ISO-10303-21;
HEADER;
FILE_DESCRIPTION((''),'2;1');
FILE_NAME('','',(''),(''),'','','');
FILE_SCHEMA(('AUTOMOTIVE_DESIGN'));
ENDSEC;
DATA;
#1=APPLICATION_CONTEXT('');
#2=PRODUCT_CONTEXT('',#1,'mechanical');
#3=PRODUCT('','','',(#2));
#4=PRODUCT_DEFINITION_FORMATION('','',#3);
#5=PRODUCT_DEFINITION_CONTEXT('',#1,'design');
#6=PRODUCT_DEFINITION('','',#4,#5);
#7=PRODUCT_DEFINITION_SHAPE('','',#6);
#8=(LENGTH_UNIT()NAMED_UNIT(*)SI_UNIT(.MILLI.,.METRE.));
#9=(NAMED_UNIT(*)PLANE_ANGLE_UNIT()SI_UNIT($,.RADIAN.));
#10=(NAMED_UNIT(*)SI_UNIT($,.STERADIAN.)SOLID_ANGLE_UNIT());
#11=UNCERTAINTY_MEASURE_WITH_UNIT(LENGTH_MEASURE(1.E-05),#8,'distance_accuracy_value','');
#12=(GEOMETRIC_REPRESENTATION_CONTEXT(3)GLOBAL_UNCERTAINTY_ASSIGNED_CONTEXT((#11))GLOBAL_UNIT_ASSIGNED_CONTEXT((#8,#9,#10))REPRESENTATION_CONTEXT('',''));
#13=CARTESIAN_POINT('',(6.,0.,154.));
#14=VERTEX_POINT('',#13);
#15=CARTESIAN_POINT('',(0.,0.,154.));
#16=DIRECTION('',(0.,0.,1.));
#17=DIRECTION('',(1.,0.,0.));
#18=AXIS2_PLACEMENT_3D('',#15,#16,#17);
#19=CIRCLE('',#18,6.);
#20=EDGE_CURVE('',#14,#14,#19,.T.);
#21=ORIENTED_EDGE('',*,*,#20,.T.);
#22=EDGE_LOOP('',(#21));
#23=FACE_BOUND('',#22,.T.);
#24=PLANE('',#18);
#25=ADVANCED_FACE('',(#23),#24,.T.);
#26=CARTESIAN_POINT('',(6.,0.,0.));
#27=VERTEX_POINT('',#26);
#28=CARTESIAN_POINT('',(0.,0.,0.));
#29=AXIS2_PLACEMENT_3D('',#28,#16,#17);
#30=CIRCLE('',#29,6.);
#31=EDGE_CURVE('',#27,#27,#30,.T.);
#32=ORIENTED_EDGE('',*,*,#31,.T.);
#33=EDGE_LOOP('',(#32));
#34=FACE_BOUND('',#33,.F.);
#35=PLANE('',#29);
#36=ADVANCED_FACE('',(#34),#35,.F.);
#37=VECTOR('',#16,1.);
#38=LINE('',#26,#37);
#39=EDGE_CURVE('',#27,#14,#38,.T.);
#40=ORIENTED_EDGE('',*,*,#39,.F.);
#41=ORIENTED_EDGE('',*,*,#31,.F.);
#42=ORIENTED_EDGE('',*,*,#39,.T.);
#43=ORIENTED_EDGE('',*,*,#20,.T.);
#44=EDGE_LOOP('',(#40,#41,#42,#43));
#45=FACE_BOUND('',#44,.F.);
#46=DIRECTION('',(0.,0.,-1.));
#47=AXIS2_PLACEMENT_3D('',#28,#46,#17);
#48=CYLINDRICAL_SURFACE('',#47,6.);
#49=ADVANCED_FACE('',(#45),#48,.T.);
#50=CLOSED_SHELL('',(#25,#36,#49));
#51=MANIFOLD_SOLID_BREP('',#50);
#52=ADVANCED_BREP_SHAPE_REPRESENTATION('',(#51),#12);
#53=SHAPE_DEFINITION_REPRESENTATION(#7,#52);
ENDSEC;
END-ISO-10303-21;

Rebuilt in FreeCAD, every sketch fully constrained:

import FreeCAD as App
import Part
import Sketcher
from FreeCAD import Vector
Q = App.Units.Quantity

doc = App.newDocument("Part")
body = doc.addObject("PartDesign::Body", "Body")

sketch1 = doc.addObject("Sketcher::SketchObject", "Sketch")
body.addObject(sketch1)
sketch1.AttachmentSupport = (doc.XY_Plane, [""])
sketch1.MapMode = "FlatFace"
sketch1.addGeometry(Part.Circle(Vector(0, 0, 0), Vector(0, 0, 1), 6), False)
sketch1.addConstraint([
    Sketcher.Constraint("Coincident", 0, 3, -1, 1),
    Sketcher.Constraint("Diameter", 0, Q("12 mm")),
])
pad1 = doc.addObject("PartDesign::Pad", "Pad")
body.addObject(pad1)
pad1.Profile = sketch1
pad1.Length = 154

doc.recompute()
